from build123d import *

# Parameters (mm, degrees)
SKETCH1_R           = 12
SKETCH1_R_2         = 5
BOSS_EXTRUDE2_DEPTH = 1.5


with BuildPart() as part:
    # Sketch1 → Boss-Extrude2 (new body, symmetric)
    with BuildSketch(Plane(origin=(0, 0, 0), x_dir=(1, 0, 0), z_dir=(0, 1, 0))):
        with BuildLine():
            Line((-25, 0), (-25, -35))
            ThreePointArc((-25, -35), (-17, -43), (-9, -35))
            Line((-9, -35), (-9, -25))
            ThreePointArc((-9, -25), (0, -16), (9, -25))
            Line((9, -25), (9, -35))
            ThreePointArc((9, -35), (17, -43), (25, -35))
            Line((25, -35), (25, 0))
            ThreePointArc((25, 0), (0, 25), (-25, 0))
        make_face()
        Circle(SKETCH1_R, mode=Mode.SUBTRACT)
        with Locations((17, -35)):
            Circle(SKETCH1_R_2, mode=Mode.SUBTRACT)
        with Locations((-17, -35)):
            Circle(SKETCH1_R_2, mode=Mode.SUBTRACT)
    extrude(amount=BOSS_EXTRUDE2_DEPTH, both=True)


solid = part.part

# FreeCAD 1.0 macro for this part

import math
import FreeCAD as App
import Part
import Sketcher

V = App.Vector

doc = App.newDocument("Part")
body = doc.addObject("PartDesign::Body", "Body")

# Sketch on XZ plane
sketch1 = body.newObject("Sketcher::SketchObject", "Sketch")
sketch1.AttachmentSupport = (doc.getObject("XZ_Plane"), [""])
sketch1.MapMode = "FlatFace"
sketch1.addGeometry([
    Part.LineSegment(V(-25, 0, 0), V(-25, 35, 0)),  # 0
    Part.ArcOfCircle(Part.Circle(V(-17, 35, 0), V(0, 0, 1), 8), math.radians(0), math.radians(180)),  # 1
    Part.LineSegment(V(-9, 35, 0), V(-9, 25, 0)),  # 2
    Part.ArcOfCircle(Part.Circle(V(0, 25, 0), V(0, 0, 1), 9), math.radians(180), math.radians(360)),  # 3
    Part.LineSegment(V(9, 25, 0), V(9, 35, 0)),  # 4
    Part.ArcOfCircle(Part.Circle(V(17, 35, 0), V(0, 0, 1), 8), math.radians(0), math.radians(180)),  # 5
    Part.LineSegment(V(25, 35, 0), V(25, 0, 0)),  # 6
    Part.ArcOfCircle(Part.Circle(V(0, 0, 0), V(0, 0, 1), 25), math.radians(180), math.radians(360)),  # 7
    Part.Circle(V(-17, 35, 0), V(0, 0, 1), 5),  # 8
    Part.Circle(V(17, 35, 0), V(0, 0, 1), 5),  # 9
    Part.Circle(V(0, 0, 0), V(0, 0, 1), 12),  # 10
], False)
sketch1.addConstraint([
    Sketcher.Constraint("Tangent", 0, 2, 1, 2),
    Sketcher.Constraint("Tangent", 1, 1, 2, 1),
    Sketcher.Constraint("Tangent", 2, 2, 3, 1),
    Sketcher.Constraint("Tangent", 3, 2, 4, 1),
    Sketcher.Constraint("Tangent", 4, 2, 5, 2),
    Sketcher.Constraint("Tangent", 5, 1, 6, 1),
    Sketcher.Constraint("Tangent", 6, 2, 7, 2),
    Sketcher.Constraint("Tangent", 7, 1, 0, 1),
    Sketcher.Constraint("Vertical", 0),
    Sketcher.Constraint("Vertical", 2),
    Sketcher.Constraint("Vertical", 4),
    Sketcher.Constraint("Vertical", 6),
    Sketcher.Constraint("Coincident", 7, 3, -1, 1),
    Sketcher.Constraint("Coincident", 10, 3, -1, 1),
    Sketcher.Constraint("Coincident", 8, 3, 1, 3),
    Sketcher.Constraint("Coincident", 9, 3, 5, 3),
    Sketcher.Constraint("Equal", 1, 5),
    Sketcher.Constraint("Equal", 8, 9),
    Sketcher.Constraint("Horizontal", 1, 3, 5, 3),
    Sketcher.Constraint("Diameter", 8, 10.0),
    Sketcher.Constraint("Diameter", 10, 24.0),
    Sketcher.Constraint("Radius", 1, 8.0),
    Sketcher.Constraint("Radius", 3, 9.0),
    Sketcher.Constraint("DistanceY", 0, 1, 0, 2, 35.0),
    Sketcher.Constraint("DistanceY", 2, 2, 2, 1, 10.0),
])
pad1 = body.newObject("PartDesign::Pad", "Pad")
pad1.Profile = sketch1
pad1.Length = 3
pad1.Midplane = True

doc.recompute()
